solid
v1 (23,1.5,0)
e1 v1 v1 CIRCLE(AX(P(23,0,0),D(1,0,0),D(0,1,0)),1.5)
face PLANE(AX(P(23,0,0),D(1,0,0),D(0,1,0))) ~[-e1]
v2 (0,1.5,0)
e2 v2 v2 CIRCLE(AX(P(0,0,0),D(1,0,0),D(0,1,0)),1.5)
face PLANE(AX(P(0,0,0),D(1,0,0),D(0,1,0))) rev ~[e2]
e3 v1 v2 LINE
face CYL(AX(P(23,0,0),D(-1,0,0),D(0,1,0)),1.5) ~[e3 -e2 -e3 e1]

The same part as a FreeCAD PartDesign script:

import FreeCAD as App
import Part
import Sketcher

V = App.Vector
Q = App.Units.Quantity

doc = App.newDocument("Part")
params = doc.addObject("Spreadsheet::Sheet", "Params")
for row, (alias, value) in enumerate([
    ("sketch1_width", "23 mm"),
    ("sketch1_height", "1.5 mm"),
    ("revolution_angle", "360 deg"),
], start=1):
    params.set(f"A{row}", alias)
    params.set(f"B{row}", "=" + value)
    params.setAlias(f"B{row}", alias)

body = doc.addObject("PartDesign::Body", "Body")

# Sketch on XY plane
sketch1 = body.newObject("Sketcher::SketchObject", "Sketch")
sketch1.AttachmentSupport = (doc.getObject("XY_Plane"), [""])
sketch1.MapMode = "FlatFace"
sketch1.addGeometry(Part.LineSegment(V(0, 1.5, 0), V(0, 0, 0)), False)
sketch1.addGeometry(Part.LineSegment(V(0, 0, 0), V(23, 0, 0)), False)
sketch1.addGeometry(Part.LineSegment(V(23, 0, 0), V(23, 1.5, 0)), False)
sketch1.addGeometry(Part.LineSegment(V(23, 1.5, 0), V(0, 1.5, 0)), False)
sketch1.addConstraint(Sketcher.Constraint("Coincident", 0, 2, 1, 1))
sketch1.addConstraint(Sketcher.Constraint("Coincident", 1, 2, 2, 1))
sketch1.addConstraint(Sketcher.Constraint("Coincident", 2, 2, 3, 1))
sketch1.addConstraint(Sketcher.Constraint("Coincident", 3, 2, 0, 1))
sketch1.addConstraint(Sketcher.Constraint("Vertical", 0))
sketch1.addConstraint(Sketcher.Constraint("Horizontal", 1))
sketch1.addConstraint(Sketcher.Constraint("Vertical", 2))
sketch1.addConstraint(Sketcher.Constraint("Horizontal", 3))
sketch1.addConstraint(Sketcher.Constraint("Coincident", 0, 2, -1, 1))
sketch1.addConstraint(Sketcher.Constraint("DistanceX", 1, 1, 1, 2, Q("23 mm")))
sketch1.addConstraint(Sketcher.Constraint("DistanceY", 0, 2, 0, 1, Q("1.5 mm")))
sketch1.setExpression("Constraints[9]", "Params.sketch1_width")
sketch1.setExpression("Constraints[10]", "Params.sketch1_height")
revolution = body.newObject("PartDesign::Revolution", "Revolution")
revolution.Profile = sketch1
revolution.ReferenceAxis = (sketch1, ["H_Axis"])
revolution.setExpression("Angle", "Params.revolution_angle")

doc.recompute()
